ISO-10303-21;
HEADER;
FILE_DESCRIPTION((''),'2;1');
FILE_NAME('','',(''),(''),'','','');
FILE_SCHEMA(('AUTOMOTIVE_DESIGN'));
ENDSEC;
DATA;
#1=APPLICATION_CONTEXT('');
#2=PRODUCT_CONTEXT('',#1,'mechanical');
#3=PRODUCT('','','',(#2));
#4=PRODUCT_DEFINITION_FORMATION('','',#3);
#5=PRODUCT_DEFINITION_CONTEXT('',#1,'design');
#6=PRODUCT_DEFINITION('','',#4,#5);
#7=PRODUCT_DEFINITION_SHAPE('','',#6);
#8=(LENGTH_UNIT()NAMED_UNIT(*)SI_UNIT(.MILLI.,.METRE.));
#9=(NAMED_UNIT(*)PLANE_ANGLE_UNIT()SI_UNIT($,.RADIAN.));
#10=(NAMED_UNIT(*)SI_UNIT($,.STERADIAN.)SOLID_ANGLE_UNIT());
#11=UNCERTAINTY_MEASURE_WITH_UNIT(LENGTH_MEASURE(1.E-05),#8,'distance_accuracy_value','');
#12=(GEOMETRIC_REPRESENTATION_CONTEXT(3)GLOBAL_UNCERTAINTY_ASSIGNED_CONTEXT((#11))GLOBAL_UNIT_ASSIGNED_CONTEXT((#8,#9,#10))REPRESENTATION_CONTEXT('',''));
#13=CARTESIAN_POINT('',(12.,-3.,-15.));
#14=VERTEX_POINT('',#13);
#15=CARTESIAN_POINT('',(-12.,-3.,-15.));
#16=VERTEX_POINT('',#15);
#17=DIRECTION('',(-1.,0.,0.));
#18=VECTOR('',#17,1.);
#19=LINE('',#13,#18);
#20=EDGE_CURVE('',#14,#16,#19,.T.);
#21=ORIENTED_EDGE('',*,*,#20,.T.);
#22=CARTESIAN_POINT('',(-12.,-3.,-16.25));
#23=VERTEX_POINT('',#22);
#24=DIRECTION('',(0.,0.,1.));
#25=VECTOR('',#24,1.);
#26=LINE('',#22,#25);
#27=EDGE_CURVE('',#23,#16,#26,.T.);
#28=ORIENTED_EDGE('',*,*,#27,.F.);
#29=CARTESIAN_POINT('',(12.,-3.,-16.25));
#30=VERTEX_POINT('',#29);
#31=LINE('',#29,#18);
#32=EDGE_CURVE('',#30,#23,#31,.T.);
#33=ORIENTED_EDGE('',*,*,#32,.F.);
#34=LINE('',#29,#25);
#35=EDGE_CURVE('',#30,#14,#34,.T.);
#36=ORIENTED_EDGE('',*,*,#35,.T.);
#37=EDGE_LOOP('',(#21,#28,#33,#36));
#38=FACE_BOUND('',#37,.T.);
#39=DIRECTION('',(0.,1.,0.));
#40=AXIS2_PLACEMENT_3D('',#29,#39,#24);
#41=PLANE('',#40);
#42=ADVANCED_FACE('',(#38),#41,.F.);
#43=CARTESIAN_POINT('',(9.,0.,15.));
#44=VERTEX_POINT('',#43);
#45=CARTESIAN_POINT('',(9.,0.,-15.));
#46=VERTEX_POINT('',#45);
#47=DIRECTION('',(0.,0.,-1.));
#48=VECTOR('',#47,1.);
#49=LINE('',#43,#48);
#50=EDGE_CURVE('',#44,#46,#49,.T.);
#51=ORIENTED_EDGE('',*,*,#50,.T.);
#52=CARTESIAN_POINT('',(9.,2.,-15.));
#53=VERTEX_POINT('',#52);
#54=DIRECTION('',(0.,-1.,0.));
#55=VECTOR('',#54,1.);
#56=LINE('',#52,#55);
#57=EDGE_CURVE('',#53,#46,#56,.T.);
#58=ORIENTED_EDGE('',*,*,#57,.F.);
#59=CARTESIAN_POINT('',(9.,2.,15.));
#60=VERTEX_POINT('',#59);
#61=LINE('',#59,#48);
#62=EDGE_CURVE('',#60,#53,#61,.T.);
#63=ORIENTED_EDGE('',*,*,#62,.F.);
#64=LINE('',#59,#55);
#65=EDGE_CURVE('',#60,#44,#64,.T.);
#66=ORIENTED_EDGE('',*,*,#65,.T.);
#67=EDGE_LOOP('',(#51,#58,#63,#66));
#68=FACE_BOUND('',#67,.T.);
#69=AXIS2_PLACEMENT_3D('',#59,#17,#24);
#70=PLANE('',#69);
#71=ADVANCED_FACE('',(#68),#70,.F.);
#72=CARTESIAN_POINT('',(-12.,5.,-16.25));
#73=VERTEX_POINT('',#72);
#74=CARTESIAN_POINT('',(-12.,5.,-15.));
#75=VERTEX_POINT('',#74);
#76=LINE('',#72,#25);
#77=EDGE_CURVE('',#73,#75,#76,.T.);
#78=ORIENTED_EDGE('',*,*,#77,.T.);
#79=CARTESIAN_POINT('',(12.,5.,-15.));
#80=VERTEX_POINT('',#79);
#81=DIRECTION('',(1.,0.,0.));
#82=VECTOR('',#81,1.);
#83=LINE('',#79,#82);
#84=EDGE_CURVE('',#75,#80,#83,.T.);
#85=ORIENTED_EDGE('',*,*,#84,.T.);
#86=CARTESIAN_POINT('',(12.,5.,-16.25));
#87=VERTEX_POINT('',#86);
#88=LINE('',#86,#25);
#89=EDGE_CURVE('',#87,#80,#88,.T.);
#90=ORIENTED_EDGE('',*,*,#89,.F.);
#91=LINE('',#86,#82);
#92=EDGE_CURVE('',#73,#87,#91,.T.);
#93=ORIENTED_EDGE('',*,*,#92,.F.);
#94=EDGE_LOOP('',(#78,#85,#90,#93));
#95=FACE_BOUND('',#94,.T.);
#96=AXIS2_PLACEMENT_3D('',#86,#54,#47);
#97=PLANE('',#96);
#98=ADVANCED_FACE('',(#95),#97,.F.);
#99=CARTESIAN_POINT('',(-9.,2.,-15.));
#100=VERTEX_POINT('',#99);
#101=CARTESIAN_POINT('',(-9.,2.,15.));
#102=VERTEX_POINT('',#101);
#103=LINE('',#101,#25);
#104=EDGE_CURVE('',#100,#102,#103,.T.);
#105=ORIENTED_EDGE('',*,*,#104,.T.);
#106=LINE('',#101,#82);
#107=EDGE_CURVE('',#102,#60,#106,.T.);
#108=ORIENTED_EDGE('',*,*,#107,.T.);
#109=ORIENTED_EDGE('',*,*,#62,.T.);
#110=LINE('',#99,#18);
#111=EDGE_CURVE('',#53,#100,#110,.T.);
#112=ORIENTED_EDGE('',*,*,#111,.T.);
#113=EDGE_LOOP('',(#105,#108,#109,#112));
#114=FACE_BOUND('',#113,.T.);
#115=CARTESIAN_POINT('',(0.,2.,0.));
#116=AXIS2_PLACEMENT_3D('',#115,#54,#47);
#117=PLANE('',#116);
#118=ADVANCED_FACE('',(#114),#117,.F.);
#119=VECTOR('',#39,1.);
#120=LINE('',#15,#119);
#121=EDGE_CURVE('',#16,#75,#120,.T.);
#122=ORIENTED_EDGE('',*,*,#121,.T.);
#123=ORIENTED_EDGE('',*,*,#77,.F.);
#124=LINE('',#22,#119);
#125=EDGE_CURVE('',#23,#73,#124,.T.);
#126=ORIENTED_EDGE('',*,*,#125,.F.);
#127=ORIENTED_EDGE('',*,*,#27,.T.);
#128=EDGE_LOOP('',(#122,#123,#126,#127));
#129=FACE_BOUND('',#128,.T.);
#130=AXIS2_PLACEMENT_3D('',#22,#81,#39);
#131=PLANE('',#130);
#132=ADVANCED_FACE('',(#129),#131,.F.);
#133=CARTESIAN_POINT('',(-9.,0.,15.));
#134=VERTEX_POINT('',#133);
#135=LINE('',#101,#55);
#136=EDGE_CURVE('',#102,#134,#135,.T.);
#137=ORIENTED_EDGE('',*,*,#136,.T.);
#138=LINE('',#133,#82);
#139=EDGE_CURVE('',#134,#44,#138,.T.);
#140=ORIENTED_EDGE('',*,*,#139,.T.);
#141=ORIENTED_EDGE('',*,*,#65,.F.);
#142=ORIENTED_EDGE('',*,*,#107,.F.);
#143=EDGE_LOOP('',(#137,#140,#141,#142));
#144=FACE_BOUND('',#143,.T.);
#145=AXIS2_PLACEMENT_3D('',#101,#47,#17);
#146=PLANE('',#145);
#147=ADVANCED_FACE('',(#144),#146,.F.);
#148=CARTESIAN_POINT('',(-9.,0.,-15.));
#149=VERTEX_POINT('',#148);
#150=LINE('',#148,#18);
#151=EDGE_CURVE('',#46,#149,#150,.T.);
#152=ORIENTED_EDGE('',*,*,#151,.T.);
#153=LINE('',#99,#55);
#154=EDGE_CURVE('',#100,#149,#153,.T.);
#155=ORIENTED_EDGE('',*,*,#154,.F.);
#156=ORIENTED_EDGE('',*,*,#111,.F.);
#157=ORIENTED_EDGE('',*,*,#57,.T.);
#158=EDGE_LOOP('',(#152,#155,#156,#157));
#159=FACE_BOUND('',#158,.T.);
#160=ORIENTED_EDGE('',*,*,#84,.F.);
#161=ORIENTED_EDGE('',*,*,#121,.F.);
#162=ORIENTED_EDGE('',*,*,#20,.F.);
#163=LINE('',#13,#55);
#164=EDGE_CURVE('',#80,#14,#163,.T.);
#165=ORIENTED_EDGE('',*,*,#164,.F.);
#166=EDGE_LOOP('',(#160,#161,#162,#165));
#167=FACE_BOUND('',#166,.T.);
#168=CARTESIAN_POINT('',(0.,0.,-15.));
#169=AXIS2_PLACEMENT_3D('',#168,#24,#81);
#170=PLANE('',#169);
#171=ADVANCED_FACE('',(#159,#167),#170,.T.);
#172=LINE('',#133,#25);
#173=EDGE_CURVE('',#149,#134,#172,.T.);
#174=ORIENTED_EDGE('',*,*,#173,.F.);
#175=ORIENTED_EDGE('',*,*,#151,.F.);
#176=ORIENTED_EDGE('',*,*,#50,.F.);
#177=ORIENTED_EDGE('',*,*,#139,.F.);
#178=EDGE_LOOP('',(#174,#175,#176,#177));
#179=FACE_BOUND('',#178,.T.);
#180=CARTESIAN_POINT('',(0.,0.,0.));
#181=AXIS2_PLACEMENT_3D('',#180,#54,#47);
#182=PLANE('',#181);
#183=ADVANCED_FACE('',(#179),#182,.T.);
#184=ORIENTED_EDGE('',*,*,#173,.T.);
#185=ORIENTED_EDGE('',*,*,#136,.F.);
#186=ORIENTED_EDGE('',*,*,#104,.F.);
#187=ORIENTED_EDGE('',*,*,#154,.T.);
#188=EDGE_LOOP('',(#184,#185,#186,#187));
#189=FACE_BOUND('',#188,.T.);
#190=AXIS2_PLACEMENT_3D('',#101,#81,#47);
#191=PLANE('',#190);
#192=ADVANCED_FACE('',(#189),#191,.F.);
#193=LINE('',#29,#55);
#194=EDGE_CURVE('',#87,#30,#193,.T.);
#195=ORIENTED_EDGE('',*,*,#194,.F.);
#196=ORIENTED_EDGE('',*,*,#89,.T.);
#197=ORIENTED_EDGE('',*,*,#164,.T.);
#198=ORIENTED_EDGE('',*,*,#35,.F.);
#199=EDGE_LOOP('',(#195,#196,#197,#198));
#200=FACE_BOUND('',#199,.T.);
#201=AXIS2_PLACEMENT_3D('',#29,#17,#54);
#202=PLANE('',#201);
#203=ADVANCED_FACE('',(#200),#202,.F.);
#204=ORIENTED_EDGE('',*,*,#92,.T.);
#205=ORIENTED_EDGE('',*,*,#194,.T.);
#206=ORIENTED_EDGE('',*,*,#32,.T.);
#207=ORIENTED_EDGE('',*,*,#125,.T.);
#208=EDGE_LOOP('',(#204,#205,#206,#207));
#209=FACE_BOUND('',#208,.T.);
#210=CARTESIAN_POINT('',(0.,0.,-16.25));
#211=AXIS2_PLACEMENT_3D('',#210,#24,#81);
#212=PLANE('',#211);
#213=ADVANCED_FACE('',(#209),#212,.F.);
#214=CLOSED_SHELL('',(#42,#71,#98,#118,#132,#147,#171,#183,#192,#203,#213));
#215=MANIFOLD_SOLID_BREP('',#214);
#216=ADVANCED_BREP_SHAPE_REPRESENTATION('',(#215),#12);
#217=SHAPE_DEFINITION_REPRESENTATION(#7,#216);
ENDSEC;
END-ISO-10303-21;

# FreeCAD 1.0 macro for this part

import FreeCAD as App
import Part
import Sketcher


def add_polygon(sketch, points):
    """Adds a closed chain of lines whose ends are joined by coincident constraints."""
    first, n = sketch.GeometryCount, len(points)
    for a, b in zip(points, points[1:] + points[:1]):
        sketch.addGeometry(Part.LineSegment(App.Vector(*a, 0), App.Vector(*b, 0)), False)
    for i in range(n):
        sketch.addConstraint(Sketcher.Constraint("Coincident", first + i, 2, first + (i + 1) % n, 1))

doc = App.newDocument("Part")
params = doc.addObject("Spreadsheet::Sheet", "Params")
for row, (alias, value) in enumerate([
    ("sketch1_width", "18 mm"),
    ("sketch1_height", "30 mm"),
    ("pad1_length", "2 mm"),
    ("sketch2_width", "24 mm"),
    ("sketch2_height", "8 mm"),
    ("pad2_length", "1.25 mm"),
], start=1):
    params.set(f"A{row}", alias)
    params.set(f"B{row}", "=" + value)
    params.setAlias(f"B{row}", alias)

body = doc.addObject("PartDesign::Body", "Body")

# Sketch on XZ plane
sketch1 = doc.addObject("Sketcher::SketchObject", "Sketch")
body.addObject(sketch1)
sketch1.AttachmentSupport = (doc.XZ_Plane, [""])
sketch1.MapMode = "FlatFace"
add_polygon(sketch1, [(-9, -15), (-9, 15), (9, 15), (9, -15)])  # lines 0-3
sketch1.addConstraint([
    Sketcher.Constraint("Vertical", 0),
    Sketcher.Constraint("Horizontal", 1),
    Sketcher.Constraint("Vertical", 2),
    Sketcher.Constraint("Horizontal", 3),
    Sketcher.Constraint("Symmetric", 0, 2, 2, 2, -1, 1),
    Sketcher.Constraint("DistanceX", 1, 1, 1, 2, 18.0),
    Sketcher.Constraint("DistanceY", 0, 1, 0, 2, 30.0),
])
sketch1.setExpression("Constraints[9]", "Params.sketch1_width")
sketch1.setExpression("Constraints[10]", "Params.sketch1_height")
pad1 = doc.addObject("PartDesign::Pad", "Pad")
body.addObject(pad1)
pad1.Profile = sketch1
pad1.setExpression("Length", "Params.pad1_length")
pad1.Reversed = True

# Sketch on XY plane
sketch2 = doc.addObject("Sketcher::SketchObject", "Sketch001")
body.addObject(sketch2)
sketch2.AttachmentSupport = (doc.XY_Plane, [""])
sketch2.MapMode = "FlatFace"
sketch2.AttachmentOffset = App.Placement(App.Vector(0, 0, -15), App.Rotation())
add_polygon(sketch2, [(12, 5), (12, -3), (-12, -3), (-12, 5)])  # lines 0-3
sketch2.addConstraint([
    Sketcher.Constraint("Vertical", 0),
    Sketcher.Constraint("Horizontal", 1),
    Sketcher.Constraint("Vertical", 2),
    Sketcher.Constraint("Horizontal", 3),
    Sketcher.Constraint("DistanceX", 1, 2, 1, 1, 24.0),
    Sketcher.Constraint("DistanceY", 0, 2, 0, 1, 8.0),
    Sketcher.Constraint("DistanceX", -1, 1, 0, 2, 12.0),
    Sketcher.Constraint("DistanceY", 0, 2, -1, 1, 3.0),
])
sketch2.setExpression("Constraints[8]", "Params.sketch2_width")
sketch2.setExpression("Constraints[9]", "Params.sketch2_height")
pad2 = doc.addObject("PartDesign::Pad", "Pad001")
body.addObject(pad2)
pad2.Profile = sketch2
pad2.setExpression("Length", "Params.pad2_length")
pad2.Reversed = True

doc.recompute()
